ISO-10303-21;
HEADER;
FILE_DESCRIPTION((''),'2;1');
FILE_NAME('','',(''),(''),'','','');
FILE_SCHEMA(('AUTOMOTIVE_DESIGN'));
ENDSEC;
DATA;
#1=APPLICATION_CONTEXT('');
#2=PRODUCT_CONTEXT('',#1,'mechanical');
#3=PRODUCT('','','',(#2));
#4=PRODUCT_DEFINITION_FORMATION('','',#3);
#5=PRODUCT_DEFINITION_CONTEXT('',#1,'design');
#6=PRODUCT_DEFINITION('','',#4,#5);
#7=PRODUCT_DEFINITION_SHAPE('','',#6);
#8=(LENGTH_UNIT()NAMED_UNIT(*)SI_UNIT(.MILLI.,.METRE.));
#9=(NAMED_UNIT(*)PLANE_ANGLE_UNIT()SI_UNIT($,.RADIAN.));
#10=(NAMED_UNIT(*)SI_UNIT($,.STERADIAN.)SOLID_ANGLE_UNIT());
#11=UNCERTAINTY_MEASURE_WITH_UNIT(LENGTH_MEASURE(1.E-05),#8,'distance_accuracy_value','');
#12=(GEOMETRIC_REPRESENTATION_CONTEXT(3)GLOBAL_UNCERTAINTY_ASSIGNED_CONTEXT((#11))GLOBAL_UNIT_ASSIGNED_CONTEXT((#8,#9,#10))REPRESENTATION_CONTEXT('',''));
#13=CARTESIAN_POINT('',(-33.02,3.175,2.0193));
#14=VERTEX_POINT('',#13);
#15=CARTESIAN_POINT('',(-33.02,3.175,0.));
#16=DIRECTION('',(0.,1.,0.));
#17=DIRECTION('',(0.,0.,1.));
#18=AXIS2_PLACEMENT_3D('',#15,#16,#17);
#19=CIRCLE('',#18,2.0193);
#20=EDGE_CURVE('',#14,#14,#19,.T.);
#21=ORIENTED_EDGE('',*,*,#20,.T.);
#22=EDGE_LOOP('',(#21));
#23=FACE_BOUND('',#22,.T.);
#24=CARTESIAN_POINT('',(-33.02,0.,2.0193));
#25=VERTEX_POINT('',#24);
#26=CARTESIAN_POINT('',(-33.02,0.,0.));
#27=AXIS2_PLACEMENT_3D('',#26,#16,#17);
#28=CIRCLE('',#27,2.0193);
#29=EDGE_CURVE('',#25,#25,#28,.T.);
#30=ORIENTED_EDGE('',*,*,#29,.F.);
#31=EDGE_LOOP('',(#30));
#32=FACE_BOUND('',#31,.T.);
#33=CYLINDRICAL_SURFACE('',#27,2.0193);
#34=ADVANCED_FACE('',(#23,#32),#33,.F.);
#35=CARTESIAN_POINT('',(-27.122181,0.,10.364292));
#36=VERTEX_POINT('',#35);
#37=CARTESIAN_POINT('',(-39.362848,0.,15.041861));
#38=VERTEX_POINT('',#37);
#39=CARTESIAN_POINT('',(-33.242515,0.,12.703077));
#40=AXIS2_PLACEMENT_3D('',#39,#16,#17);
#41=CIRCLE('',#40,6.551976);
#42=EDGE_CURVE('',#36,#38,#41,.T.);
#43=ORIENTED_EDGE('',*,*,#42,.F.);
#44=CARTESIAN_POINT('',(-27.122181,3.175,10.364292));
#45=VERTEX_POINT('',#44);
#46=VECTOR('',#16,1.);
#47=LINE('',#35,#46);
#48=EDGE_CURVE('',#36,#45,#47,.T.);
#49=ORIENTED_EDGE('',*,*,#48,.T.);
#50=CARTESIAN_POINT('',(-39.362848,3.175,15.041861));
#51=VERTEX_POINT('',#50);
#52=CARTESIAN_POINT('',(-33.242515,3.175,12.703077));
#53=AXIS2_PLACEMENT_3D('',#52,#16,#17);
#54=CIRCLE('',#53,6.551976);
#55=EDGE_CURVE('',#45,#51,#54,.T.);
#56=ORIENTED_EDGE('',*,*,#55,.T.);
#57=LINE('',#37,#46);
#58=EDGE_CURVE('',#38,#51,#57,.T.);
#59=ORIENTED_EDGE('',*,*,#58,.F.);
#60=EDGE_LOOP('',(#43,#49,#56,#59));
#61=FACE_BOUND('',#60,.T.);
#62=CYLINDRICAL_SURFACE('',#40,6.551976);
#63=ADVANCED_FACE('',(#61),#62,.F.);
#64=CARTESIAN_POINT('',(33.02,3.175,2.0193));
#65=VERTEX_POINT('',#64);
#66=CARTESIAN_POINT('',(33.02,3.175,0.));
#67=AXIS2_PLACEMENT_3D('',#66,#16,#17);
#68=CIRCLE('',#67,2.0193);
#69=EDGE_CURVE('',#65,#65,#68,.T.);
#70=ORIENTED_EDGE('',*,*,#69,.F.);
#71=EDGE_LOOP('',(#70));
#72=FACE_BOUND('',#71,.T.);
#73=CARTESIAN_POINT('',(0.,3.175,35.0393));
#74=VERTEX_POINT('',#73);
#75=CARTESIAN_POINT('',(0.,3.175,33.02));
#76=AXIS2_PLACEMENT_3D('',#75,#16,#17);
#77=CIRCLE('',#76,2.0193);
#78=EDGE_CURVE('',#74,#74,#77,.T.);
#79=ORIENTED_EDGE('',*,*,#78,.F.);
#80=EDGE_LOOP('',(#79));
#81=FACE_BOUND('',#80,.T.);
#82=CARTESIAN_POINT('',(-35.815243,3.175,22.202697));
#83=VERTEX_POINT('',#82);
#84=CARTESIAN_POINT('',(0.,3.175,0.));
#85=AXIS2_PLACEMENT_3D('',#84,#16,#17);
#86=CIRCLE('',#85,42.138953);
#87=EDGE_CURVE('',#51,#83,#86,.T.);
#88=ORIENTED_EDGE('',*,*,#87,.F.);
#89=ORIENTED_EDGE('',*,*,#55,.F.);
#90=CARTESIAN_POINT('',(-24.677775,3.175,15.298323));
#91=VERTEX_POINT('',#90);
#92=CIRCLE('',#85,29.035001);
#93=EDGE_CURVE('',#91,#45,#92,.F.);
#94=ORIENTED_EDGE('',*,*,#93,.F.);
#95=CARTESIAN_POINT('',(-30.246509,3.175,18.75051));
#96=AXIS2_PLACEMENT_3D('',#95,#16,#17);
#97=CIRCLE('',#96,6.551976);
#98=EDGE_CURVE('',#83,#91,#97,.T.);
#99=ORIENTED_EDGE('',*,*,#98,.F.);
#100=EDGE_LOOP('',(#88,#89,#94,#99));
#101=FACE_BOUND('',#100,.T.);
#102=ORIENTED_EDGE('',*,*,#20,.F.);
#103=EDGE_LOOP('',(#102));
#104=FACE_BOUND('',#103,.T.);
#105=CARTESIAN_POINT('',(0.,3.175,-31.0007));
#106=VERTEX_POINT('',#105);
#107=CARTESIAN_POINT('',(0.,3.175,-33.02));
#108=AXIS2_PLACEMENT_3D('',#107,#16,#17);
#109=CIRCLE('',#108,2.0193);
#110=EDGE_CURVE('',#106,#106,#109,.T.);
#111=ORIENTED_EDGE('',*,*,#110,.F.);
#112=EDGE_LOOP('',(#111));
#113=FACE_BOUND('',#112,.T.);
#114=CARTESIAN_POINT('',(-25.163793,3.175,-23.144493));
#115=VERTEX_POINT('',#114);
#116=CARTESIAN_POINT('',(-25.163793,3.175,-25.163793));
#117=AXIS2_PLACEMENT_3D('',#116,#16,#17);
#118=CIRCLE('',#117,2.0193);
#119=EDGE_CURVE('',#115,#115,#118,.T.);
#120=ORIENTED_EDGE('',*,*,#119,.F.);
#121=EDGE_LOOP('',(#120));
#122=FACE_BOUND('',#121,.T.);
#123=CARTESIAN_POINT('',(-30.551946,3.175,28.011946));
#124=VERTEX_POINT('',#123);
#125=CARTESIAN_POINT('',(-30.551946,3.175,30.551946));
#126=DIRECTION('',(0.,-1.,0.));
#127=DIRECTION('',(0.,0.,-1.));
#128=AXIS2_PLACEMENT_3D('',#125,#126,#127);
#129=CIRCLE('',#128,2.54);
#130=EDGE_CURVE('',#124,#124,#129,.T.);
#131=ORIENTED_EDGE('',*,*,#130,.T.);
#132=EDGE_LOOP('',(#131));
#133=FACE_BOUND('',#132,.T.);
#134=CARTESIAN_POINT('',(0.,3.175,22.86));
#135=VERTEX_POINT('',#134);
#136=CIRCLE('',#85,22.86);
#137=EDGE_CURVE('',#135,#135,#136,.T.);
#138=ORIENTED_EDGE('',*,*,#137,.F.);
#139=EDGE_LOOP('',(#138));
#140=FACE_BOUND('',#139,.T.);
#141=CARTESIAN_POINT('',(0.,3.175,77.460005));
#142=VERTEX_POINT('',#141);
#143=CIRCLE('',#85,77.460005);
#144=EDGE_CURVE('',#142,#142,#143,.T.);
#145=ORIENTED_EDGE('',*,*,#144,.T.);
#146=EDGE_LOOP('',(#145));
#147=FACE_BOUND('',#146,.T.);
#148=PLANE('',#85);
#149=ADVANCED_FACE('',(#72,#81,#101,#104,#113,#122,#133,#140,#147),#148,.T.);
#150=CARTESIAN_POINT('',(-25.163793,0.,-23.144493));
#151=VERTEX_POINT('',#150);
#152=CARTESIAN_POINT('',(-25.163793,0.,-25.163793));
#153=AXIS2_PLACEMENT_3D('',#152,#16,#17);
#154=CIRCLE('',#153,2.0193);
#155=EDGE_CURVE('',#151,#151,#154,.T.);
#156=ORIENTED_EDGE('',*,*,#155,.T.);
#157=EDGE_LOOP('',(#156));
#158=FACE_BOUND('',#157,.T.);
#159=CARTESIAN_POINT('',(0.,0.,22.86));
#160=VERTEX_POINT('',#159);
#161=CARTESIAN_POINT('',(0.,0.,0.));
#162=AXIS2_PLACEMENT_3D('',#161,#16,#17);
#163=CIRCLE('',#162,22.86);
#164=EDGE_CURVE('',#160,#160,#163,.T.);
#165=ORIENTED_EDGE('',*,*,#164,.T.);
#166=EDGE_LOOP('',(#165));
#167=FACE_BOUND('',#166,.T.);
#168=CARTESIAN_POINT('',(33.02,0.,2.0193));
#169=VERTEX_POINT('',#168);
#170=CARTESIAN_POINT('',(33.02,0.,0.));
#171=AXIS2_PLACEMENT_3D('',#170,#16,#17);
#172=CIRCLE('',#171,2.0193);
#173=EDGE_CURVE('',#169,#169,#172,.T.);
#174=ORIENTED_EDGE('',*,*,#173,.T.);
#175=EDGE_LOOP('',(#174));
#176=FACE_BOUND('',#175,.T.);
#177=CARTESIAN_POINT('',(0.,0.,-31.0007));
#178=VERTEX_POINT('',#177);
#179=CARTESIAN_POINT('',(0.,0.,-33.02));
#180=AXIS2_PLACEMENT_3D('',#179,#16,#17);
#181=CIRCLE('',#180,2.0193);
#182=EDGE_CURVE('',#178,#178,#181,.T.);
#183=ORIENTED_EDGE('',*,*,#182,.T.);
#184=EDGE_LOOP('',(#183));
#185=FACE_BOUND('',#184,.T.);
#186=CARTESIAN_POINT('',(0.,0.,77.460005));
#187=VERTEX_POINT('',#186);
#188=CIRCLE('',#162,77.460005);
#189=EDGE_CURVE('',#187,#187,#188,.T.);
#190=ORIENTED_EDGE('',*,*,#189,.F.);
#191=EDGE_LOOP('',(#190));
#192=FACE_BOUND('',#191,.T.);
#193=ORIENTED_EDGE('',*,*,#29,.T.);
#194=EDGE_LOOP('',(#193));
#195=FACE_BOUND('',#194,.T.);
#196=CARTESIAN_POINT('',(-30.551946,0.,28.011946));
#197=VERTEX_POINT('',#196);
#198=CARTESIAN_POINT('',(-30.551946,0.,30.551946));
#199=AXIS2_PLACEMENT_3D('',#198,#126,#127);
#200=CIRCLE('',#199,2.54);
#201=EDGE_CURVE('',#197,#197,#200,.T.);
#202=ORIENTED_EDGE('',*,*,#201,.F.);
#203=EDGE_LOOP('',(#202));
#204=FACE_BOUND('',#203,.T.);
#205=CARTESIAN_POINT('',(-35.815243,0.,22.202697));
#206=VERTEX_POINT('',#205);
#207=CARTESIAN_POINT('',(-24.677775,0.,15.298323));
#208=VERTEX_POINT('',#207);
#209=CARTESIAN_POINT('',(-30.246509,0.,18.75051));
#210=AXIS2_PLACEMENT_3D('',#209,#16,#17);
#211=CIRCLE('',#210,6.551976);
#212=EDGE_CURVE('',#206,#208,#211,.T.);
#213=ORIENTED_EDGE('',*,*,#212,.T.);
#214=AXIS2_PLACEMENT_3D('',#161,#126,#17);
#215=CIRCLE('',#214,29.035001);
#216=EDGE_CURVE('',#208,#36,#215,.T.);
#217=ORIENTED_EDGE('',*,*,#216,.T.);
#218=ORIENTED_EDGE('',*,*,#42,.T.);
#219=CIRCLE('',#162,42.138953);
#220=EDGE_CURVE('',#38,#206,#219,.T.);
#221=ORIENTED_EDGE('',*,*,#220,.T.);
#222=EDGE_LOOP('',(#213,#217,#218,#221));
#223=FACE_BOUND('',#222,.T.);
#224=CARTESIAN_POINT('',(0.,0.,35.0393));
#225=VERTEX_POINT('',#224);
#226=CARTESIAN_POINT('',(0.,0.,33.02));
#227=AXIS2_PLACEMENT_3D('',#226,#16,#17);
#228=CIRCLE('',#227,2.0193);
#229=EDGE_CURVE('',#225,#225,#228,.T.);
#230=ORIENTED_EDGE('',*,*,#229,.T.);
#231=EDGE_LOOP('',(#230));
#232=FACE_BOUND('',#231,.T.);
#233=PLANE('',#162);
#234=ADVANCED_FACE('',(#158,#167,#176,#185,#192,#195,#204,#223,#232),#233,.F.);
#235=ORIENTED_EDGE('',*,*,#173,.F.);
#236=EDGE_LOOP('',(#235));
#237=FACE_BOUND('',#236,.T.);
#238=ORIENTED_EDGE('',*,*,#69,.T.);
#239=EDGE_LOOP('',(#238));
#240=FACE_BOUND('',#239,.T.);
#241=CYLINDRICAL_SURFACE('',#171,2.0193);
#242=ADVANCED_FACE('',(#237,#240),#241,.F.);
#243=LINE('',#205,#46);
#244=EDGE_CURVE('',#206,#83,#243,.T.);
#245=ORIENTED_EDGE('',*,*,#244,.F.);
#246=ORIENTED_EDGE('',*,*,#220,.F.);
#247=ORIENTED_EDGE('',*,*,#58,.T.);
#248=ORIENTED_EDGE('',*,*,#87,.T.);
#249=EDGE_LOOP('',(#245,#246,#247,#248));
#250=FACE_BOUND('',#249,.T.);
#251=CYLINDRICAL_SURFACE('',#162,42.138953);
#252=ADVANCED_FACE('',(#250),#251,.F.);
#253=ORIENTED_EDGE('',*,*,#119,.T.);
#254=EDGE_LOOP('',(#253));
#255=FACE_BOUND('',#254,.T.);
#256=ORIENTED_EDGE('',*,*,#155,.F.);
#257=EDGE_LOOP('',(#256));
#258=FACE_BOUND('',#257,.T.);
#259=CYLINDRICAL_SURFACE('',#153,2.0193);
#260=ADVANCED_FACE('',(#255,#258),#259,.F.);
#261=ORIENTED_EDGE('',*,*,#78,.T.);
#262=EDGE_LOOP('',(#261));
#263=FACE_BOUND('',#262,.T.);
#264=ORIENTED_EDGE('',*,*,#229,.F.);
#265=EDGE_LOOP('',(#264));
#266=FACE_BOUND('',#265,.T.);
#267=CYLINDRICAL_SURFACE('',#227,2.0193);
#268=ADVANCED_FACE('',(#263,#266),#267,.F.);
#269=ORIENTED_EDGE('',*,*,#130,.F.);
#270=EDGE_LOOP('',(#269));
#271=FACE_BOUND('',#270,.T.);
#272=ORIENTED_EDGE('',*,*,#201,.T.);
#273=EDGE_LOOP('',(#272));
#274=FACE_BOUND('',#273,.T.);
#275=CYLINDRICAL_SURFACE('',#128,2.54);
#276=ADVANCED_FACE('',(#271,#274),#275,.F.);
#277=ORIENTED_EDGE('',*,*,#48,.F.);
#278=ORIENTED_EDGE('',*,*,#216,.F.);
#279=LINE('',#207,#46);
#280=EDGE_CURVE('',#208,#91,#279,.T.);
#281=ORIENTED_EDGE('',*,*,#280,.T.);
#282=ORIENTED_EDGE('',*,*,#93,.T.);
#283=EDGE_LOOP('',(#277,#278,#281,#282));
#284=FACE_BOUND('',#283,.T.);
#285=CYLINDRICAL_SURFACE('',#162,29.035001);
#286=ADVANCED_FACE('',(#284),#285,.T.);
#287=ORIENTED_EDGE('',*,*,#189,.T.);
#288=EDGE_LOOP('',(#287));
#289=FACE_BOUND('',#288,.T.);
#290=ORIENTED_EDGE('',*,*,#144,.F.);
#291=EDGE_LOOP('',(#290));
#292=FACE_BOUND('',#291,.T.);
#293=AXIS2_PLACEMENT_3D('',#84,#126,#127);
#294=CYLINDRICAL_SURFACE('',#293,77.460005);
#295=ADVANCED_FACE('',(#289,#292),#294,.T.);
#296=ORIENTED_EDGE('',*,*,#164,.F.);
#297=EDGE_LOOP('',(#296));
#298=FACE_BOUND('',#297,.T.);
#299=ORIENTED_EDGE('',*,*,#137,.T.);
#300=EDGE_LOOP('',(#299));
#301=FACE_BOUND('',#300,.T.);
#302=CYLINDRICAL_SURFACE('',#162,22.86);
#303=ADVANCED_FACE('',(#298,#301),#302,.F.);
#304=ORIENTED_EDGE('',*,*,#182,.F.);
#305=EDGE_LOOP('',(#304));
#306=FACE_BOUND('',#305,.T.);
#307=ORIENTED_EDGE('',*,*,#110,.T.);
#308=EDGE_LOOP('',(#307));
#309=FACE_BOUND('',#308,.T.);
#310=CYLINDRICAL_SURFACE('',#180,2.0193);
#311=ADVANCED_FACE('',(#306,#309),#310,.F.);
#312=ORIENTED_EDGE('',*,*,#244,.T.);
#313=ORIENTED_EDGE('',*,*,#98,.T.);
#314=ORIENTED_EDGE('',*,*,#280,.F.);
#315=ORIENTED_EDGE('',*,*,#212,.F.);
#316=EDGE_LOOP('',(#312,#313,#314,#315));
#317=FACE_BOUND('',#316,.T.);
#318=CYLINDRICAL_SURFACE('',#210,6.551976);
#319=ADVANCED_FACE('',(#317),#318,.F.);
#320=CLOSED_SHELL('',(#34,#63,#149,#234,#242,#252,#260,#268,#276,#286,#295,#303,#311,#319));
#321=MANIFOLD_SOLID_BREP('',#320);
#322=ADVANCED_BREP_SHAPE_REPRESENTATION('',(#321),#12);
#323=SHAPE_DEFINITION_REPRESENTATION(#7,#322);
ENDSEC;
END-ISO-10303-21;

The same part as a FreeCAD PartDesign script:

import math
import FreeCAD as App
import Part
import Sketcher
from FreeCAD import Vector
Q = App.Units.Quantity

doc = App.newDocument("Part")
body = doc.addObject("PartDesign::Body", "Body")

# Sketch on XZ plane
sketch1 = body.newObject("Sketcher::SketchObject", "Sketch")
sketch1.AttachmentSupport = (doc.getObject("XZ_Plane"), [""])
sketch1.MapMode = "FlatFace"
sketch1.addGeometry(Part.Circle(Vector(0, 0, 0), Vector(0, 0, 1), 77), False)
sketch1.addConstraint([
    Sketcher.Constraint("Coincident", 0, 3, -1, 1),
    Sketcher.Constraint("Diameter", 0, 154.92001),
])
pad1 = body.newObject("PartDesign::Pad", "Pad")
pad1.Profile = sketch1
pad1.Length = Q("0.125 in")
pad1.Reversed = True

# Sketch on XZ plane
sketch2 = body.newObject("Sketcher::SketchObject", "Sketch001")
sketch2.AttachmentSupport = (doc.getObject("XZ_Plane"), [""])
sketch2.MapMode = "FlatFace"
sketch2.AttachmentOffset = App.Placement(Vector(0, 0, -1 * 25.4), App.Rotation())
sketch2.addGeometry([
    Part.Circle(Vector(0, 0, 0), Vector(0, 0, 1), 22.9),  # 0
    Part.Circle(Vector(0, -33, 0), Vector(0, 0, 1), 2),  # 1
    Part.Circle(Vector(33, 0, 0), Vector(0, 0, 1), 2),  # 2
    Part.Circle(Vector(0, 33, 0), Vector(0, 0, 1), 2),  # 3
    Part.Circle(Vector(-33, 0, 0), Vector(0, 0, 1), 2),  # 4
], False)
sketch2.addConstraint([
    Sketcher.Constraint("Coincident", 0, 3, -1, 1),
    Sketcher.Constraint("Equal", 1, 2),
    Sketcher.Constraint("Equal", 2, 3),
    Sketcher.Constraint("Equal", 3, 4),
    Sketcher.Constraint("Symmetric", 1, 3, 3, 3, -1, 1),
    Sketcher.Constraint("Symmetric", 2, 3, 4, 3, -1, 1),
    Sketcher.Constraint("PointOnObject", 1, 3, -2),
    Sketcher.Constraint("PointOnObject", 2, 3, -1),
    Sketcher.Constraint("Diameter", 0, Q("1.8 in")),
    Sketcher.Constraint("Diameter", 1, Q("0.159 in")),
    Sketcher.Constraint("DistanceY", 1, 3, -1, 1, Q("1.3 in")),
    Sketcher.Constraint("DistanceX", -1, 1, 2, 3, Q("1.3 in")),
])
pocket1 = body.newObject("PartDesign::Pocket", "Pocket")
pocket1.Profile = sketch2
pocket1.Type = "ThroughAll"
pocket1.Reversed = True

# Sketch on XZ plane
sketch3 = body.newObject("Sketcher::SketchObject", "Sketch002")
sketch3.AttachmentSupport = (doc.getObject("XZ_Plane"), [""])
sketch3.MapMode = "FlatFace"
sketch3.AttachmentOffset = App.Placement(Vector(0, 0, -1 * 25.4), App.Rotation())
sketch3.addGeometry(Part.Circle(Vector(-25.2, -25.2, 0), Vector(0, 0, 1), 2), False)
sketch3.addConstraint([
    Sketcher.Constraint("Diameter", 0, Q("0.159 in")),
    Sketcher.Constraint("DistanceX", 0, 3, -1, 1, 25.163793),
    Sketcher.Constraint("DistanceY", 0, 3, -1, 1, 25.163793),
])
pocket2 = body.newObject("PartDesign::Pocket", "Pocket001")
pocket2.Profile = sketch3
pocket2.Type = "ThroughAll"
pocket2.Reversed = True

# Sketch on XZ plane
sketch4 = body.newObject("Sketcher::SketchObject", "Sketch003")
sketch4.AttachmentSupport = (doc.getObject("XZ_Plane"), [""])
sketch4.MapMode = "FlatFace"
sketch4.AttachmentOffset = App.Placement(Vector(0, 0, -1 * 25.4), App.Rotation())
sketch4.addGeometry([
    Part.ArcOfCircle(Part.Circle(Vector(0, 0, 0), Vector(0, 0, 1), 42), math.radians(148.2), math.radians(159.09)),
    Part.ArcOfCircle(Part.Circle(Vector(-30, 19, 0), Vector(0, 0, 1), 7), math.radians(-32), math.radians(148)),
    Part.ArcOfCircle(Part.Circle(Vector(0, 0, 0), Vector(0, 0, 1), 29), math.radians(148.2), math.radians(159.09)),
    Part.ArcOfCircle(Part.Circle(Vector(-33, 13, 0), Vector(0, 0, 1), 7), math.radians(159), math.radians(339)),
], False)
sketch4.addConstraint([
    Sketcher.Constraint("Tangent", 0, 1, 1, 2),
    Sketcher.Constraint("Tangent", 1, 1, 2, 1),
    Sketcher.Constraint("Tangent", 2, 2, 3, 2),
    Sketcher.Constraint("Tangent", 3, 1, 0, 2),
    Sketcher.Constraint("Coincident", 0, 3, -1, 1),
    Sketcher.Constraint("Coincident", 2, 3, -1, 1),
    Sketcher.Constraint("Radius", 2, 29.035001),
    Sketcher.Constraint("Radius", 0, 42.138953),
    Sketcher.Constraint("DistanceX", 1, 3, -1, 1, 30.246509),
    Sketcher.Constraint("DistanceX", 2, 2, -1, 1, 27.122181),
])
pocket3 = body.newObject("PartDesign::Pocket", "Pocket002")
pocket3.Profile = sketch4
pocket3.Type = "ThroughAll"
pocket3.Reversed = True

# Sketch on XZ plane
sketch5 = body.newObject("Sketcher::SketchObject", "Sketch004")
sketch5.AttachmentSupport = (doc.getObject("XZ_Plane"), [""])
sketch5.MapMode = "FlatFace"
sketch5.addGeometry(Part.Circle(Vector(-30.6, 30.6, 0), Vector(0, 0, 1), 2.5), False)
sketch5.addConstraint([
    Sketcher.Constraint("Diameter", 0, Q("0.2 in")),
    Sketcher.Constraint("DistanceX", 0, 3, -1, 1, 30.551946),
    Sketcher.Constraint("DistanceY", -1, 1, 0, 3, 30.551946),
])
pocket4 = body.newObject("PartDesign::Pocket", "Pocket003")
pocket4.Profile = sketch5
pocket4.Length = Q("0.125 in")

doc.recompute()
